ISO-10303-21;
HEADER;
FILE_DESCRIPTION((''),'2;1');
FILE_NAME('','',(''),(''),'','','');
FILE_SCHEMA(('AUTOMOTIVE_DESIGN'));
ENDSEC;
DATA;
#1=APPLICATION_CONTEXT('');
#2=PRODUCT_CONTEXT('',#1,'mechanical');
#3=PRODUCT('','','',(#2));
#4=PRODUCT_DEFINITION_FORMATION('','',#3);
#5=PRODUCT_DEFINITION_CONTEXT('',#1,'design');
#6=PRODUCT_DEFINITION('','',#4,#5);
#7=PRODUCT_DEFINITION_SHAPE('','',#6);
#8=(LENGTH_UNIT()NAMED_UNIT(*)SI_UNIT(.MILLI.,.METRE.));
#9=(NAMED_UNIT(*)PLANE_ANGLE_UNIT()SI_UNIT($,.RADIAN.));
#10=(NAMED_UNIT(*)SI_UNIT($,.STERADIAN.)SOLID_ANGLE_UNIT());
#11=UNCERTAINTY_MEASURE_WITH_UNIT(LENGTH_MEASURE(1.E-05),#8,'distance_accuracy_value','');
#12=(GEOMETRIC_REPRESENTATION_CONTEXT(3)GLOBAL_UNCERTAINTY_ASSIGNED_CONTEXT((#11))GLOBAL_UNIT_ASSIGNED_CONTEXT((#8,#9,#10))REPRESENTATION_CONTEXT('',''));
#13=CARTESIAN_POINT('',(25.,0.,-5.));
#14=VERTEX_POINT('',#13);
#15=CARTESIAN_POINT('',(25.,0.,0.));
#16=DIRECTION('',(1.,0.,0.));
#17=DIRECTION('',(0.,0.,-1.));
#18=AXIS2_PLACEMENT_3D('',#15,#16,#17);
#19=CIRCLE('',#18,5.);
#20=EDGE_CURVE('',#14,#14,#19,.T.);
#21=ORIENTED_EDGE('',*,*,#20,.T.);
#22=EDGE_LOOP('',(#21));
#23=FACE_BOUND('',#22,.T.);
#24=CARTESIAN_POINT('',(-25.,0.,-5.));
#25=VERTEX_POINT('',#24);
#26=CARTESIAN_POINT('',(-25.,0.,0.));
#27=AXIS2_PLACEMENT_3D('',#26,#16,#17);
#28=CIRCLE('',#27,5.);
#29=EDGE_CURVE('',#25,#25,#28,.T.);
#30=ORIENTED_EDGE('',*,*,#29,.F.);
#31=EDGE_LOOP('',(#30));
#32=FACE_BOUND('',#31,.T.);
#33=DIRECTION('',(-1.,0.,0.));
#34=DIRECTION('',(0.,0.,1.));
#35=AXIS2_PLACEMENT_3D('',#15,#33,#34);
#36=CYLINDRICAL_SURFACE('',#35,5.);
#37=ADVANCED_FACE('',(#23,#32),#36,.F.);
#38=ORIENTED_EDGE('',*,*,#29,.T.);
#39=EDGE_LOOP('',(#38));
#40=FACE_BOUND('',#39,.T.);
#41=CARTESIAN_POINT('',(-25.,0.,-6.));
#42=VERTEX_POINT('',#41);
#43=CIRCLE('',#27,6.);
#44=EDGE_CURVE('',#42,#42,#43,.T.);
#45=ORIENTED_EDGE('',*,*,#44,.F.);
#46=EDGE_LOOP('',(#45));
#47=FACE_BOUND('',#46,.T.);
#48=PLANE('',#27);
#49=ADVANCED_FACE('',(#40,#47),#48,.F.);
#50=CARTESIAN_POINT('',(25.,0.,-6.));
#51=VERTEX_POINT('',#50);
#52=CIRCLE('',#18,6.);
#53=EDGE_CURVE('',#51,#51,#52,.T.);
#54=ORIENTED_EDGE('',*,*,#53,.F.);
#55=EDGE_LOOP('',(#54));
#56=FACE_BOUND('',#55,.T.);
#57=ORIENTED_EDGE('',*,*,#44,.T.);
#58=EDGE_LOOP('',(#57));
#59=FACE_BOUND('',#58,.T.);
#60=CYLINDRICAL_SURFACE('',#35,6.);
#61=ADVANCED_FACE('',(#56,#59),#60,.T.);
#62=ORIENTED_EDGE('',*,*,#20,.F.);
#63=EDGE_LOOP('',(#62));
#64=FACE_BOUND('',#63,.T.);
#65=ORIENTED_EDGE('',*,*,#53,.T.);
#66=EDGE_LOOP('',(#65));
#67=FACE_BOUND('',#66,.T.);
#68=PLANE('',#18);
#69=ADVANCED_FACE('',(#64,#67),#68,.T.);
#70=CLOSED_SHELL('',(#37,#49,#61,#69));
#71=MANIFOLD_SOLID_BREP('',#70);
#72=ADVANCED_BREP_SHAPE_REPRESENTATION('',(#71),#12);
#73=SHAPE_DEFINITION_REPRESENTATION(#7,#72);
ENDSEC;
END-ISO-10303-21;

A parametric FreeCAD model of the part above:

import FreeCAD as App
import Part
import Sketcher

V = App.Vector
Q = App.Units.Quantity

doc = App.newDocument("Part")
body = doc.addObject("PartDesign::Body", "Body")

# Sketch on YZ plane
sketch1 = body.newObject("Sketcher::SketchObject", "Sketch")
sketch1.AttachmentSupport = (doc.getObject("YZ_Plane"), [""])
sketch1.MapMode = "FlatFace"
sketch1.addGeometry([
    Part.Circle(V(0, 0, 0), V(0, 0, 1), 6),
    Part.Circle(V(0, 0, 0), V(0, 0, 1), 5),
], False)
sketch1.addConstraint([
    Sketcher.Constraint("Coincident", 0, 3, -1, 1),
    Sketcher.Constraint("Coincident", 1, 3, -1, 1),
    Sketcher.Constraint("Diameter", 0, Q("12 mm")),
    Sketcher.Constraint("Diameter", 1, Q("10 mm")),
])
pad1 = body.newObject("PartDesign::Pad", "Pad")
pad1.Profile = sketch1
pad1.Length = 50
pad1.Midplane = True

doc.recompute()
